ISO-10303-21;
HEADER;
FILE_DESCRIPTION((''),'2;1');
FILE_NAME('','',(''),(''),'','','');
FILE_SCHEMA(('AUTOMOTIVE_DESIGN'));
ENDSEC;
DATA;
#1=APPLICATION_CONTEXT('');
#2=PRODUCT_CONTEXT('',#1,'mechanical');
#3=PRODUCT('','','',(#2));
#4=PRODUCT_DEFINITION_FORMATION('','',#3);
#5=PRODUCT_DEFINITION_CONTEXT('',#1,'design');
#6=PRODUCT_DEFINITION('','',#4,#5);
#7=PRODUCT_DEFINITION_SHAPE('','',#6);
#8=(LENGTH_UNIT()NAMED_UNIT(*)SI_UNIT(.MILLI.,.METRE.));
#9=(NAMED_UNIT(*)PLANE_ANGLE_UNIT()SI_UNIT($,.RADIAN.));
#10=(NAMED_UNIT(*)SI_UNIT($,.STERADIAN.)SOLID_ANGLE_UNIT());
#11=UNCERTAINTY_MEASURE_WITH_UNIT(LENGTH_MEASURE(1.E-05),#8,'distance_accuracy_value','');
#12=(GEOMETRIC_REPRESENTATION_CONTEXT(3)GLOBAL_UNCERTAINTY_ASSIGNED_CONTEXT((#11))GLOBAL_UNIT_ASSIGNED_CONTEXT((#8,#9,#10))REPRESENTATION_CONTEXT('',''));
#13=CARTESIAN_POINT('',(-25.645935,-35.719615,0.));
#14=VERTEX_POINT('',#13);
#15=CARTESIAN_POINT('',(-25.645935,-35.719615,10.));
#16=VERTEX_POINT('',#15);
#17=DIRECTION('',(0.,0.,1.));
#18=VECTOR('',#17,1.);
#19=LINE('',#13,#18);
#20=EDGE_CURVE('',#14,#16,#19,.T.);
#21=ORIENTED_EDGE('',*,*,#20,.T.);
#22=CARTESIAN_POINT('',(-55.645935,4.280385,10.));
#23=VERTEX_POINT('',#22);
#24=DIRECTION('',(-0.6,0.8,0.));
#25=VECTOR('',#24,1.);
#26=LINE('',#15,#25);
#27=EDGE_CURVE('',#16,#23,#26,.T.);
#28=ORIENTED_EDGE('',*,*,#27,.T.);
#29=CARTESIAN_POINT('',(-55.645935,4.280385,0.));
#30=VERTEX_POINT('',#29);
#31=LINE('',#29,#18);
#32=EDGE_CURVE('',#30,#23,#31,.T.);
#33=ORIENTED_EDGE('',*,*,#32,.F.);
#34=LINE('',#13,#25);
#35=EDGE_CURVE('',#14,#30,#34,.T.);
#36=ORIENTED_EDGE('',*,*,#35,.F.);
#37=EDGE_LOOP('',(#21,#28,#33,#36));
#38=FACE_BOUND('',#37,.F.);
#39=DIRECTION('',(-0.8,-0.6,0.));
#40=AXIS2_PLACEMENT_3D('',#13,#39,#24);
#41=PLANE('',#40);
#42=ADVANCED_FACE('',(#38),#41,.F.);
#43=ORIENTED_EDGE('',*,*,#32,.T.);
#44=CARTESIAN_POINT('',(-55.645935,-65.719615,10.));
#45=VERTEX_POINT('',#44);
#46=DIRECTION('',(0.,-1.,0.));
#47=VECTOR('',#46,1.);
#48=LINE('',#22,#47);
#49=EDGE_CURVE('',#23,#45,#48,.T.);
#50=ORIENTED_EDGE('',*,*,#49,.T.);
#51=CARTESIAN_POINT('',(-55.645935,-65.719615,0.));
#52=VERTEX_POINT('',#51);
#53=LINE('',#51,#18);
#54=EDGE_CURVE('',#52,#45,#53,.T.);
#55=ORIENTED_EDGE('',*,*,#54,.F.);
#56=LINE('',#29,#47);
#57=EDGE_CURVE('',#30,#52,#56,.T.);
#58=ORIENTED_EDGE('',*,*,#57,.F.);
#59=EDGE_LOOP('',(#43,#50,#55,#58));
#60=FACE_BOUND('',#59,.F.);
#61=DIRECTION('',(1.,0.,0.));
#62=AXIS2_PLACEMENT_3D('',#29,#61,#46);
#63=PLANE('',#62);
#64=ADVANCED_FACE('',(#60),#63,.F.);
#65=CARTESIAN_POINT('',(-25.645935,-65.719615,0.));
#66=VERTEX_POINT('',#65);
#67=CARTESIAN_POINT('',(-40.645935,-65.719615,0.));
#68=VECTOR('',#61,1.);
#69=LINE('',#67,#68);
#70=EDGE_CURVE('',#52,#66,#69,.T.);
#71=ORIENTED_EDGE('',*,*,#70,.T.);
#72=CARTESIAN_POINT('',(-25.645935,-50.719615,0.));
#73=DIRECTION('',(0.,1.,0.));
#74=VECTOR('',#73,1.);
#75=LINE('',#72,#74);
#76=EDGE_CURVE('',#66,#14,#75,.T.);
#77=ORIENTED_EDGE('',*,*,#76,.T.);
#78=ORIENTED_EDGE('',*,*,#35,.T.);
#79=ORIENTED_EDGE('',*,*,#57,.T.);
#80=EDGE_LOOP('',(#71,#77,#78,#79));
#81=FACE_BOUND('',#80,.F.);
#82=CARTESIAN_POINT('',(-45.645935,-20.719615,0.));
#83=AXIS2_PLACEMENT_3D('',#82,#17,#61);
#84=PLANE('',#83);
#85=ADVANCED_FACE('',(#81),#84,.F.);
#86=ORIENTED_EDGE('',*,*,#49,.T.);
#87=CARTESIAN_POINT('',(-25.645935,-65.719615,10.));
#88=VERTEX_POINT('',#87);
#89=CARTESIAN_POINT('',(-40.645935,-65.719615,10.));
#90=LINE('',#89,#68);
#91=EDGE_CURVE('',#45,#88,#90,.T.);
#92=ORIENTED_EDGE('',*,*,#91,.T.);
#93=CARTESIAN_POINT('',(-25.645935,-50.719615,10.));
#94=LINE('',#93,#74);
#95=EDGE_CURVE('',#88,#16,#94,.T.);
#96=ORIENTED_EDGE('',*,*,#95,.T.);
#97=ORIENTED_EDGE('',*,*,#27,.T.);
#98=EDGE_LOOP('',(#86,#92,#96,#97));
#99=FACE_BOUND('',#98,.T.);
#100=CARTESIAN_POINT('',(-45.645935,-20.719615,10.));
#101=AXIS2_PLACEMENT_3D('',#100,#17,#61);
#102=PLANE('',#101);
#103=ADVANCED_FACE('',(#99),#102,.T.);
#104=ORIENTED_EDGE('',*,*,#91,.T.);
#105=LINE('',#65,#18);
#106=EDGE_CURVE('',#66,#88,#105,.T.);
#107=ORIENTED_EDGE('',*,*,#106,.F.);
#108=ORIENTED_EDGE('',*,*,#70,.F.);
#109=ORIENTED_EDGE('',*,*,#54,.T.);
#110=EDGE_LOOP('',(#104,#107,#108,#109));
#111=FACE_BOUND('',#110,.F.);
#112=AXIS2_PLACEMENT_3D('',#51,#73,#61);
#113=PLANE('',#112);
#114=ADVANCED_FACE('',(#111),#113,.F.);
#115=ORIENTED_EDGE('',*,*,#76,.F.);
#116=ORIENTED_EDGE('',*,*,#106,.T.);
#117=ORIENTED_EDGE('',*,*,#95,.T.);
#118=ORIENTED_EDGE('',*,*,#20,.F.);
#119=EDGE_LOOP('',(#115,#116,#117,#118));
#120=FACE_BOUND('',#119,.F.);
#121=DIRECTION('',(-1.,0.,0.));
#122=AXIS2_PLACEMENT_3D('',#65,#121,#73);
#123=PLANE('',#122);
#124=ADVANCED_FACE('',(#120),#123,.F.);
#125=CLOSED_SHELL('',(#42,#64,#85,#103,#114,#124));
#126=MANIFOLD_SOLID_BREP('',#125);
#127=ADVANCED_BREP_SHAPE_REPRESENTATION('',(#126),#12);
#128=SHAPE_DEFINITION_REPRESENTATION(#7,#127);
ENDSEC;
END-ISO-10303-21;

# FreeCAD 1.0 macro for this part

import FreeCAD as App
import Part
import Sketcher
Q = App.Units.Quantity

doc = App.newDocument("Part")
body = doc.addObject("PartDesign::Body", "Body")

sketch1 = body.newObject("Sketcher::SketchObject", "Sketch")
sketch1.AttachmentSupport = (doc.getObject("XY_Plane"), [""])
sketch1.MapMode = "FlatFace"
sketch1.addGeometry(Part.LineSegment(App.Vector(-55.645935, 4.280385, 0), App.Vector(-55.645935, -65.719615, 0)), False)
sketch1.addGeometry(Part.LineSegment(App.Vector(-55.645935, -65.719615, 0), App.Vector(-25.645935, -65.719615, 0)), False)
sketch1.addGeometry(Part.LineSegment(App.Vector(-25.645935, -65.719615, 0), App.Vector(-25.645935, -35.719615, 0)), False)
sketch1.addGeometry(Part.LineSegment(App.Vector(-25.645935, -35.719615, 0), App.Vector(-55.645935, 4.280385, 0)), False)
sketch1.addConstraint(Sketcher.Constraint("Coincident", 0, 2, 1, 1))
sketch1.addConstraint(Sketcher.Constraint("Coincident", 1, 2, 2, 1))
sketch1.addConstraint(Sketcher.Constraint("Coincident", 2, 2, 3, 1))
sketch1.addConstraint(Sketcher.Constraint("Coincident", 3, 2, 0, 1))
sketch1.addConstraint(Sketcher.Constraint("Vertical", 0))
sketch1.addConstraint(Sketcher.Constraint("Horizontal", 1))
sketch1.addConstraint(Sketcher.Constraint("Vertical", 2))
sketch1.addConstraint(Sketcher.Constraint("Equal", 1, 2))
sketch1.addConstraint(Sketcher.Constraint("DistanceX", 1, 1, 1, 2, Q("30 mm")))
sketch1.addConstraint(Sketcher.Constraint("DistanceY", 0, 2, 0, 1, Q("70 mm")))
sketch1.addConstraint(Sketcher.Constraint("DistanceX", 0, 2, -1, 1, Q("55.645935 mm")))
sketch1.addConstraint(Sketcher.Constraint("DistanceY", 0, 2, -1, 1, Q("65.719615 mm")))
pad1 = body.newObject("PartDesign::Pad", "Pad")
pad1.Profile = sketch1
pad1.Length = 10

doc.recompute()
